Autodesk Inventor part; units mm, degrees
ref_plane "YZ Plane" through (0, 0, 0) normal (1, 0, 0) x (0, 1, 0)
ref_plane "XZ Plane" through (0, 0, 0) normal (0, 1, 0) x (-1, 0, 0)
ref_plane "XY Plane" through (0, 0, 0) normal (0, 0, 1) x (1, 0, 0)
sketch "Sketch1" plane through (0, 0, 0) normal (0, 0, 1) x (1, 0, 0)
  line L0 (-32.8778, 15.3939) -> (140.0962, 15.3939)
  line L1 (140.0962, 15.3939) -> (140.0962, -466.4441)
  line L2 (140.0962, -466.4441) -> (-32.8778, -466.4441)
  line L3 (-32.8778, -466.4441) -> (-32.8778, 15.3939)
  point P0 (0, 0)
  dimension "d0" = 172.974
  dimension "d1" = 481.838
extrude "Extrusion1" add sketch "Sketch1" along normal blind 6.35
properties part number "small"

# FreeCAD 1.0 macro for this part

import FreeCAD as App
import Part
import Sketcher

V = App.Vector
Q = App.Units.Quantity


def add_polygon(sketch, points):
    """Adds a closed chain of lines whose ends are joined by coincident constraints."""
    first, n = sketch.GeometryCount, len(points)
    for a, b in zip(points, points[1:] + points[:1]):
        sketch.addGeometry(Part.LineSegment(App.Vector(*a, 0), App.Vector(*b, 0)), False)
    for i in range(n):
        sketch.addConstraint(Sketcher.Constraint("Coincident", first + i, 2, first + (i + 1) % n, 1))

doc = App.newDocument("Part")
params = doc.addObject("Spreadsheet::Sheet", "Params")
for row, (alias, value) in enumerate([
    ("sketch1_width", "6.81 in"),
    ("sketch1_height", "18.97 in"),
    ("pad1_length", "0.25 in"),
], start=1):
    params.set(f"A{row}", alias)
    params.set(f"B{row}", "=" + value)
    params.setAlias(f"B{row}", alias)

body = doc.addObject("PartDesign::Body", "Body")

# Sketch on XY plane
sketch1 = doc.addObject("Sketcher::SketchObject", "Sketch")
body.addObject(sketch1)
sketch1.AttachmentSupport = (doc.XY_Plane, [""])
sketch1.MapMode = "FlatFace"
add_polygon(sketch1, [(140.0962, 15.3939), (-32.8778, 15.3939), (-32.8778, -466.4441), (140.0962, -466.4441)])  # lines 0-3
sketch1.addConstraint([
    Sketcher.Constraint("Horizontal", 0),
    Sketcher.Constraint("Vertical", 1),
    Sketcher.Constraint("Horizontal", 2),
    Sketcher.Constraint("Vertical", 3),
    Sketcher.Constraint("DistanceX", 0, 2, 0, 1, Q("6.81 in")),
    Sketcher.Constraint("DistanceY", 1, 2, 1, 1, Q("18.97 in")),
    Sketcher.Constraint("DistanceX", 0, 2, -1, 1, Q("1.2944 in")),
    Sketcher.Constraint("DistanceY", -1, 1, 0, 2, Q("15.394 mm")),
])
sketch1.setExpression("Constraints[8]", "Params.sketch1_width")
sketch1.setExpression("Constraints[9]", "Params.sketch1_height")
pad1 = doc.addObject("PartDesign::Pad", "Pad")
body.addObject(pad1)
pad1.Profile = sketch1
pad1.setExpression("Length", "Params.pad1_length")

doc.recompute()
